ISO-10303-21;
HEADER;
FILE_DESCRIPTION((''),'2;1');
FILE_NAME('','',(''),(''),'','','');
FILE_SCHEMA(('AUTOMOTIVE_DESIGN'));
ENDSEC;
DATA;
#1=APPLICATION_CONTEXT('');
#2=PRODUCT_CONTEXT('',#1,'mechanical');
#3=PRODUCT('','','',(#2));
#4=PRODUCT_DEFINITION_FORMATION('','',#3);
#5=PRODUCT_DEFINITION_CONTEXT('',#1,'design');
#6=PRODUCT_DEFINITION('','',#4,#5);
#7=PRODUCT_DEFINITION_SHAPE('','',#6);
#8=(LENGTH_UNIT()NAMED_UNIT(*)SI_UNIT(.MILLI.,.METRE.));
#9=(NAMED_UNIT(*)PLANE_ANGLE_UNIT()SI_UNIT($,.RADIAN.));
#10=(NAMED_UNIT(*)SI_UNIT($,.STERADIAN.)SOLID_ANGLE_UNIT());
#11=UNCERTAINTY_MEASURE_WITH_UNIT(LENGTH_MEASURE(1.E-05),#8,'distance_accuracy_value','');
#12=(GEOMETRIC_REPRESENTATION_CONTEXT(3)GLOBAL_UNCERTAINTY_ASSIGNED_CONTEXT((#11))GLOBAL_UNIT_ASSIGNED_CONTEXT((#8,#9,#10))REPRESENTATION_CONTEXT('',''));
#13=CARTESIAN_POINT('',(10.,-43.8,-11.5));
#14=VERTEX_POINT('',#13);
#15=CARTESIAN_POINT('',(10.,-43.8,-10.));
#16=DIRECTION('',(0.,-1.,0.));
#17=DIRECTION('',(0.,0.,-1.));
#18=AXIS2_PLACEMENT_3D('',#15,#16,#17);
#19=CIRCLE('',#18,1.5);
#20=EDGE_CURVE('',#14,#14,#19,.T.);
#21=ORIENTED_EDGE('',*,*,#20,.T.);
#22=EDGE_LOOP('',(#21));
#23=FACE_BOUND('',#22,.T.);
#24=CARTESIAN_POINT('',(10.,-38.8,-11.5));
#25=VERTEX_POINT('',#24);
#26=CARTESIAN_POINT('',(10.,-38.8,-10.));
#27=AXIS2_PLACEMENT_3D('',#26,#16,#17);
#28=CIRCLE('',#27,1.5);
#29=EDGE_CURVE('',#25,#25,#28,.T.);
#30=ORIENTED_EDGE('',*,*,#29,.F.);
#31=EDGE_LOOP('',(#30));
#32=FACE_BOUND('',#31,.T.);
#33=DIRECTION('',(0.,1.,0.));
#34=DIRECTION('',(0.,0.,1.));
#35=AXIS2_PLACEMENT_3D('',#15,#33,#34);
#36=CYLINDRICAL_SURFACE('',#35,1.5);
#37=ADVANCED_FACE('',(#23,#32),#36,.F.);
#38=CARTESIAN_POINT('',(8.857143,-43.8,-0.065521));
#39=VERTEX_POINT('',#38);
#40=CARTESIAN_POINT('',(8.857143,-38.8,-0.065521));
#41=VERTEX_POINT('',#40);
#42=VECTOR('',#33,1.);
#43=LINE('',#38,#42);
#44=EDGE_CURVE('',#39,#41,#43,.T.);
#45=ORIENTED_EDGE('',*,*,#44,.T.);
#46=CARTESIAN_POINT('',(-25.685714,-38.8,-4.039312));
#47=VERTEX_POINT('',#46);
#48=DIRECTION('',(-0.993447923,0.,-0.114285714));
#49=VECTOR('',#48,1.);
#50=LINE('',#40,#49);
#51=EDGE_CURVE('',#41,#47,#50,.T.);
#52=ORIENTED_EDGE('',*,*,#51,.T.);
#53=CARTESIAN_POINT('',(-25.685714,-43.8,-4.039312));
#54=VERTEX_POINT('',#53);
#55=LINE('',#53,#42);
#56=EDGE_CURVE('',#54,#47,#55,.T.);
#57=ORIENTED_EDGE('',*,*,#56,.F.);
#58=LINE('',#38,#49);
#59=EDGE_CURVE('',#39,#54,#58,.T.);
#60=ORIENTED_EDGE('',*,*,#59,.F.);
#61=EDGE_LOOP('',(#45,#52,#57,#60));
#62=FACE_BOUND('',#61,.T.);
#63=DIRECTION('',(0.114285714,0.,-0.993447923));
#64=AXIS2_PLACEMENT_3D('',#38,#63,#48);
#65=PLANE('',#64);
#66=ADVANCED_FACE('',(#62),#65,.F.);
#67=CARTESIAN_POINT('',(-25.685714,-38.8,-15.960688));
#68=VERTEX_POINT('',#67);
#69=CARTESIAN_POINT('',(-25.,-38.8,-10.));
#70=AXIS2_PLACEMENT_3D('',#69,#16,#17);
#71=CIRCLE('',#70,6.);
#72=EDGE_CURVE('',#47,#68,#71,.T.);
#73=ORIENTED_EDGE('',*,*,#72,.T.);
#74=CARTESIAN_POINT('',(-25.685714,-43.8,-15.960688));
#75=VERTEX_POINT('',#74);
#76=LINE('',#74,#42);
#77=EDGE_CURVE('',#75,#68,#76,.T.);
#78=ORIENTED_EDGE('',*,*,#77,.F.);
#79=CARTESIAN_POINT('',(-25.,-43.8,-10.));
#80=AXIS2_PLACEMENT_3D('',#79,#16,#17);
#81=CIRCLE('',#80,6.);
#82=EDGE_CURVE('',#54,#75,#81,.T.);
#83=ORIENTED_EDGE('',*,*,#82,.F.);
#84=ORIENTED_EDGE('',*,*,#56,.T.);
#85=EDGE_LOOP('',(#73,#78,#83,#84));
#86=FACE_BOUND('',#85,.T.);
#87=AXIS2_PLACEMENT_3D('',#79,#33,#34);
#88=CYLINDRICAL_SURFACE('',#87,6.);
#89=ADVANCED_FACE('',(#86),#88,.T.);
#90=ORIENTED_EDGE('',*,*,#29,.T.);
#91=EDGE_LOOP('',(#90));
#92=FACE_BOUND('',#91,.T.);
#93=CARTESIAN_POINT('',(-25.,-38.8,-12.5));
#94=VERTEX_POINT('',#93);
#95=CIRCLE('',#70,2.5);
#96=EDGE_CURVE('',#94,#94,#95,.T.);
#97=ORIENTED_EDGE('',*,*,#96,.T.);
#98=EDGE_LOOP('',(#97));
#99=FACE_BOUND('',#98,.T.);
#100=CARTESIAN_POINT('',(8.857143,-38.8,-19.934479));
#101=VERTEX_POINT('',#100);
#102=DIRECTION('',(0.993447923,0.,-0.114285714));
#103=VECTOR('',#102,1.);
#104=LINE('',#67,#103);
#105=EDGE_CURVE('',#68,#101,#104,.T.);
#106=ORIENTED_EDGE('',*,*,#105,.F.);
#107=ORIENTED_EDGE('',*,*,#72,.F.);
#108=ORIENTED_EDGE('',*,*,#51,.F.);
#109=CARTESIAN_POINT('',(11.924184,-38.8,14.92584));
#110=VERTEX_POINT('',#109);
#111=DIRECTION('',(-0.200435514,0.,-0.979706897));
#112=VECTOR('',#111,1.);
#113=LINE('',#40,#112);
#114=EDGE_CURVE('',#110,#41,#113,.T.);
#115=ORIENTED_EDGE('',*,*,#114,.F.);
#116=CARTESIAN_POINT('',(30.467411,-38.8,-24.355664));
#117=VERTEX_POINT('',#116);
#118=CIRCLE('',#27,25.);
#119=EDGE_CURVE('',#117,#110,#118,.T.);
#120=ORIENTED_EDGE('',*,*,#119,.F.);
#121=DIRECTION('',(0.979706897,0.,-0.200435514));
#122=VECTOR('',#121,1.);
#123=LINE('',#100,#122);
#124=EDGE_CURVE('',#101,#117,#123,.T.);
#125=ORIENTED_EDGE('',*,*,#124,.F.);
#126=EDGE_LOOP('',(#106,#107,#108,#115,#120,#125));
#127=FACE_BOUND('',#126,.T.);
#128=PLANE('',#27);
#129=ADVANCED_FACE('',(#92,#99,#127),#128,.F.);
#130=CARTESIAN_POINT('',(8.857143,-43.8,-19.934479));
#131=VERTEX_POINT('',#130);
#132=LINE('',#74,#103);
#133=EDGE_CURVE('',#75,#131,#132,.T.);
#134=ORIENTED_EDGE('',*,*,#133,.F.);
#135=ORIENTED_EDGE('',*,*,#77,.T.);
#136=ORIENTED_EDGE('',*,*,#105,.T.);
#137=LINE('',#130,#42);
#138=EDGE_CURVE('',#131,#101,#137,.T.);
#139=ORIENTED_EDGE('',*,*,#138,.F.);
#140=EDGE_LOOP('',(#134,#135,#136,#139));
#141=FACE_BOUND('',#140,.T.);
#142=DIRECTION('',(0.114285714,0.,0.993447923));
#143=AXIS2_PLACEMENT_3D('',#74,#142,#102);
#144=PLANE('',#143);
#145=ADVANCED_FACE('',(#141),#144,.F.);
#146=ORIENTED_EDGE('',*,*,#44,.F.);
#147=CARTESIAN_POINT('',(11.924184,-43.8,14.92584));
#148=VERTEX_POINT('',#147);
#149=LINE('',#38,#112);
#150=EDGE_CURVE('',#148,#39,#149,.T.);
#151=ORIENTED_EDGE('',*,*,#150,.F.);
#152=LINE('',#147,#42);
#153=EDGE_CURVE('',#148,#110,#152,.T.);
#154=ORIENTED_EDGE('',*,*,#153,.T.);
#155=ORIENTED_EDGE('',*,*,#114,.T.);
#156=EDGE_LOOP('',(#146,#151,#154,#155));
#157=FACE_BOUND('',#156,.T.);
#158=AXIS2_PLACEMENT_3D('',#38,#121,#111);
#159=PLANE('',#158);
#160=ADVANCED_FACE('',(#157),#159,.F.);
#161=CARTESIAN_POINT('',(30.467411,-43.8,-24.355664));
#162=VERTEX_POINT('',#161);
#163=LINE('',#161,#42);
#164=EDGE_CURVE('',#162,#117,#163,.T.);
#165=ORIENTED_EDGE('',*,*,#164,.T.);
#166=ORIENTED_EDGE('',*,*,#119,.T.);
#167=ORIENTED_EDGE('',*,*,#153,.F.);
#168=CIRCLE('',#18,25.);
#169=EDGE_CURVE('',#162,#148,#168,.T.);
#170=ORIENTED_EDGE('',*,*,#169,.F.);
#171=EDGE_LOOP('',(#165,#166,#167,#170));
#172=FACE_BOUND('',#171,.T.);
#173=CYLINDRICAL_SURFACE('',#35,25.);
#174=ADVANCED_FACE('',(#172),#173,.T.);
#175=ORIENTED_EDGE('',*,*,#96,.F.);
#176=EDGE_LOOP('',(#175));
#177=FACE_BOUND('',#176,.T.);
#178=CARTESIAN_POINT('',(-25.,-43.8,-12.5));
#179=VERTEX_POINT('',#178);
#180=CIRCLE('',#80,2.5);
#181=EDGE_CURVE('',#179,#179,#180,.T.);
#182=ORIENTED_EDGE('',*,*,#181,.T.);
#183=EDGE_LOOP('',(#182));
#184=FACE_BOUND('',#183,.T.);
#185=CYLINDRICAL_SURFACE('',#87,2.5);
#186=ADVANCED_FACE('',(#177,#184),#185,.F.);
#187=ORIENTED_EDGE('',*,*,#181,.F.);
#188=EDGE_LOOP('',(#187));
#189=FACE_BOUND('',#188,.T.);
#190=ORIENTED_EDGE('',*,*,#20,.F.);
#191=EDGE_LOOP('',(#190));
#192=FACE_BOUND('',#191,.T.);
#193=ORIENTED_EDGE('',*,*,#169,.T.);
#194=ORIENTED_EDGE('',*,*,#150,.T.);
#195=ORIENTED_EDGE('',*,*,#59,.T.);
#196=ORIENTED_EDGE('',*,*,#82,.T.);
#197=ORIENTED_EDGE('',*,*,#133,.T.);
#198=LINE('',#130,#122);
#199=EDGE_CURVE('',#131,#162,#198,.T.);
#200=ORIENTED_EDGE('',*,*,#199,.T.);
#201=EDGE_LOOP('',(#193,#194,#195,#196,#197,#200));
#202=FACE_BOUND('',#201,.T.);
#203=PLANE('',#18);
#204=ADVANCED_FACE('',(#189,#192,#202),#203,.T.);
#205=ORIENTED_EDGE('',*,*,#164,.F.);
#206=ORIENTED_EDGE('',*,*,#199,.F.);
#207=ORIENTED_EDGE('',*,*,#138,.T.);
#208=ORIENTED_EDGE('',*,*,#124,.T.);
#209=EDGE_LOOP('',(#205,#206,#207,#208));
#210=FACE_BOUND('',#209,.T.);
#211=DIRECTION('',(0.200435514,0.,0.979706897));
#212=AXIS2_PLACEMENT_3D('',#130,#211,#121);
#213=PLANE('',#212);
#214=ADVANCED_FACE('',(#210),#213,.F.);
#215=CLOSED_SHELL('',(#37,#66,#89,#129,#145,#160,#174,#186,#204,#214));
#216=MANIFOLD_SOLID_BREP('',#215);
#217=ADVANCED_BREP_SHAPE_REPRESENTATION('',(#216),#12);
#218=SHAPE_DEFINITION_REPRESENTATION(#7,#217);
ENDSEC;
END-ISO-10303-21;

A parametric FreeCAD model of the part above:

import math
import FreeCAD as App
import Part
import Sketcher
from FreeCAD import Vector
Q = App.Units.Quantity

doc = App.newDocument("Part")
body = doc.addObject("PartDesign::Body", "Body")

sketch1 = body.newObject("Sketcher::SketchObject", "Sketch")
sketch1.AttachmentSupport = (doc.getObject("XZ_Plane"), [""])
sketch1.MapMode = "FlatFace"
sketch1.AttachmentOffset = App.Placement(Vector(0, 0, 38.8), App.Rotation())
sketch1.addGeometry([
    Part.LineSegment(Vector(8.9, -0.1, 0), Vector(-25.7, -4, 0)),
    Part.ArcOfCircle(Part.Circle(Vector(-25, -10, 0), Vector(0, 0, 1), 6), math.radians(97), math.radians(263)),
    Part.LineSegment(Vector(-25.7, -16, 0), Vector(8.9, -19.9, 0)),
    Part.LineSegment(Vector(8.9, -19.9, 0), Vector(30.5, -24.4, 0)),
    Part.ArcOfCircle(Part.Circle(Vector(10, -10, 0), Vector(0, 0, 1), 25), math.radians(-35), math.radians(86)),
    Part.LineSegment(Vector(11.9, 14.9, 0), Vector(8.9, -0.1, 0)),
    Part.Circle(Vector(-25, -10, 0), Vector(0, 0, 1), 2.5),
    Part.Circle(Vector(10, -10, 0), Vector(0, 0, 1), 1.5),
], False)
sketch1.addConstraint([
    Sketcher.Constraint("Tangent", 0, 2, 1, 1),
    Sketcher.Constraint("Tangent", 1, 2, 2, 1),
    Sketcher.Constraint("Coincident", 2, 2, 3, 1),
    Sketcher.Constraint("Coincident", 3, 2, 4, 1),
    Sketcher.Constraint("Coincident", 4, 2, 5, 1),
    Sketcher.Constraint("Coincident", 5, 2, 0, 1),
    Sketcher.Constraint("Coincident", 6, 3, 1, 3),
    Sketcher.Constraint("Coincident", 7, 3, 4, 3),
    Sketcher.Constraint("Perpendicular", 3, 5),
    Sketcher.Constraint("Horizontal", 1, 3, 4, 3),
    Sketcher.Constraint("Vertical", 0, 2, 1, 2),
    Sketcher.Constraint("Vertical", 2, 2, 5, 2),
    Sketcher.Constraint("Diameter", 6, Q("5 mm")),
    Sketcher.Constraint("Diameter", 7, Q("3 mm")),
    Sketcher.Constraint("Radius", 1, Q("6 mm")),
    Sketcher.Constraint("Radius", 4, Q("25 mm")),
    Sketcher.Constraint("DistanceX", 1, 3, -1, 1, Q("25 mm")),
    Sketcher.Constraint("DistanceY", 1, 3, -1, 1, Q("10 mm")),
    Sketcher.Constraint("DistanceX", -1, 1, 4, 3, Q("10 mm")),
    Sketcher.Constraint("DistanceX", 0, 2, 4, 2, Q("37.609898 mm")),
    Sketcher.Constraint("Distance", 3, Q("22.057891 mm")),
    Sketcher.Constraint("DistanceY", 2, 2, -1, 1, Q("19.934479 mm")),
])
pad1 = body.newObject("PartDesign::Pad", "Pad")
pad1.Profile = sketch1
pad1.Length = 5

doc.recompute()
